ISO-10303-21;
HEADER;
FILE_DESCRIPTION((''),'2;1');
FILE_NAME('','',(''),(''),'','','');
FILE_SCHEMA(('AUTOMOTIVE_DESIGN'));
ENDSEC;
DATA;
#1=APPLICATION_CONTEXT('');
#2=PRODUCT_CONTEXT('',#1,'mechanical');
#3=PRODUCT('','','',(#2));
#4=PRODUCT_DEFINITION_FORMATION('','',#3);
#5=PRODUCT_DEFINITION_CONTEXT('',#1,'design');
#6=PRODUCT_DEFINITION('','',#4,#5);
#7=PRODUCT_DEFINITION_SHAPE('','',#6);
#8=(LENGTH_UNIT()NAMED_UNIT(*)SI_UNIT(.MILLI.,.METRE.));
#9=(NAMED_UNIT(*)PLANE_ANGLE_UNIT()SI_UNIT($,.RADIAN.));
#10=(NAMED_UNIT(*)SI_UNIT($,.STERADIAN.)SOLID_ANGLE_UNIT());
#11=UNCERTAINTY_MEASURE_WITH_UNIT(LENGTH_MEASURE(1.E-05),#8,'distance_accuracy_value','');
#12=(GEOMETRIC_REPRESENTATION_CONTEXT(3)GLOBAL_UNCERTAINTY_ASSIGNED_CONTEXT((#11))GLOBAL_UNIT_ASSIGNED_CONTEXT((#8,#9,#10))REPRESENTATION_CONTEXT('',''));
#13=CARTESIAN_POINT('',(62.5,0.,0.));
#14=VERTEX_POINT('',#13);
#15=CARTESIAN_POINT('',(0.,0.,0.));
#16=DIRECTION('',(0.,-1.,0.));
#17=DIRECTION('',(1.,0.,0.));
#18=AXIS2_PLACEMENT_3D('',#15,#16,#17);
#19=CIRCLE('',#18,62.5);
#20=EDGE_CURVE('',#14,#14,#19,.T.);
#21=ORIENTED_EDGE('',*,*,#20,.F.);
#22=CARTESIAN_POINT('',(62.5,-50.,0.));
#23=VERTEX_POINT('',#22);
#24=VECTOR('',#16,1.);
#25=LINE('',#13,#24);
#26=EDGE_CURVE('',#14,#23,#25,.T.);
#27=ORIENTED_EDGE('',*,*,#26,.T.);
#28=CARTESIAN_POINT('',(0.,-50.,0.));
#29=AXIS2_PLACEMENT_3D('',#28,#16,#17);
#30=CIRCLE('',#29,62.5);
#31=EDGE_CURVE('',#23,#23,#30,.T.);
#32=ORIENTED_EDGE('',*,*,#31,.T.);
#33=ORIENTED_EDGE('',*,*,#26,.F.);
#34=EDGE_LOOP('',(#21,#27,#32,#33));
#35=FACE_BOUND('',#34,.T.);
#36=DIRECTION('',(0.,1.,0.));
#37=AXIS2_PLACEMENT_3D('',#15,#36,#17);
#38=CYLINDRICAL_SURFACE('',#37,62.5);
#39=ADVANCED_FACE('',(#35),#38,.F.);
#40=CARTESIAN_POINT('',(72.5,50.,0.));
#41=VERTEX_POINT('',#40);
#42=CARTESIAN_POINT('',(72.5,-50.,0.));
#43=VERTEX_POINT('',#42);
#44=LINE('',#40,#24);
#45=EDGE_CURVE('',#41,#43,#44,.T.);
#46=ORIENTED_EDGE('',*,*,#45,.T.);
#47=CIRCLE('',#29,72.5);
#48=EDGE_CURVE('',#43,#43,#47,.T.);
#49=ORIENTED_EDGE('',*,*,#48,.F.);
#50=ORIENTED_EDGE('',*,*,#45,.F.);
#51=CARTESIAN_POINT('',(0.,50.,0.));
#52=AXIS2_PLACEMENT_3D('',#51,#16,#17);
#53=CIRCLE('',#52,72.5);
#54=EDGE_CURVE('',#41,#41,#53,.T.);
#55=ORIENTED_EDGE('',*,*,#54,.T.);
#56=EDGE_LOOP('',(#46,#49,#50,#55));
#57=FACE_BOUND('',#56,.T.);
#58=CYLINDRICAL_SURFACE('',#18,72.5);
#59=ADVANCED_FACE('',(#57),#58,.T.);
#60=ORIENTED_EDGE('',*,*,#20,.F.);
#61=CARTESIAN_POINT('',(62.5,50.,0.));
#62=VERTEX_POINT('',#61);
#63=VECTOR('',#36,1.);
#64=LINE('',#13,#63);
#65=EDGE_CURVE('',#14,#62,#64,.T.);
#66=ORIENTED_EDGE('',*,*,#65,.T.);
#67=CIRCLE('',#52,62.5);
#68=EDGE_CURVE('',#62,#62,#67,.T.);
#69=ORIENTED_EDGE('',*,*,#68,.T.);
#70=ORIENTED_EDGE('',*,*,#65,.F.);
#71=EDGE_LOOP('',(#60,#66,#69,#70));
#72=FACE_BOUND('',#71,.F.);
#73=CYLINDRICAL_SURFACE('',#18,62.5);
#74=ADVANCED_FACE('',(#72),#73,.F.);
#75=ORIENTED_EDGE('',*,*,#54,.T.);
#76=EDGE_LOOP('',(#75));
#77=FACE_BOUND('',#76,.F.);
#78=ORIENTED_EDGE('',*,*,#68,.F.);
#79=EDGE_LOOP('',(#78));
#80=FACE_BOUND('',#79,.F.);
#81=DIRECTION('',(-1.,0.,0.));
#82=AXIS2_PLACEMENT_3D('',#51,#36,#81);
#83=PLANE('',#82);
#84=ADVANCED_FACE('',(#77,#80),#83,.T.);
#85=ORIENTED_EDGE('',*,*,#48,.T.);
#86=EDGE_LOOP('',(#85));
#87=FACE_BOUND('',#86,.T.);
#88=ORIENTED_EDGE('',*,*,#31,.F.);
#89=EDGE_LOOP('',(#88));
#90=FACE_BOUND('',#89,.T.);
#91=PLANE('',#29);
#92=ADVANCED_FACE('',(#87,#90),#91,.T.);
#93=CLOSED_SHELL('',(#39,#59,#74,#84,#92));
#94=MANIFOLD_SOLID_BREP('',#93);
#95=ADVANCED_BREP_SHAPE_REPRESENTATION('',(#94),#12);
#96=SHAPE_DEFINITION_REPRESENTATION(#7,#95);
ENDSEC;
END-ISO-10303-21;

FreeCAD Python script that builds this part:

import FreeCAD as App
import Part
import Sketcher

V = App.Vector
Q = App.Units.Quantity

doc = App.newDocument("Part")
body = doc.addObject("PartDesign::Body", "Body")

# Sketch on XZ plane
sketch1 = body.newObject("Sketcher::SketchObject", "Sketch")
sketch1.AttachmentSupport = (doc.getObject("XZ_Plane"), [""])
sketch1.MapMode = "FlatFace"
sketch1.addGeometry([
    Part.Circle(V(0, 0, 0), V(0, 0, 1), 72),
    Part.Circle(V(0, 0, 0), V(0, 0, 1), 62),
], False)
sketch1.addConstraint([
    Sketcher.Constraint("Coincident", 0, 3, -1, 1),
    Sketcher.Constraint("Coincident", 1, 3, -1, 1),
    Sketcher.Constraint("Diameter", 0, Q("145 mm")),
    Sketcher.Constraint("Diameter", 1, Q("125 mm")),
])
pad1 = body.newObject("PartDesign::Pad", "Pad")
pad1.Profile = sketch1
pad1.Length = 50
body2 = doc.addObject("PartDesign::Body", "Body001")
doc.recompute()

body2.BaseFeature = body
doc.recompute()

mirroring = doc.addObject("Part::Mirroring", "Mirroring")
mirroring.Source = body
mirroring.Base = V(0, 0, 0)
mirroring.Normal = V(0, -1, 0)
body3 = doc.addObject("PartDesign::Body", "Body002")
body3.BaseFeature = mirroring
boolean = body2.newObject("PartDesign::Boolean", "Boolean")
boolean.Type = "Fuse"
boolean.addObjects([body3])
doc.recompute()
mirroring.Visibility = False

doc.recompute()
